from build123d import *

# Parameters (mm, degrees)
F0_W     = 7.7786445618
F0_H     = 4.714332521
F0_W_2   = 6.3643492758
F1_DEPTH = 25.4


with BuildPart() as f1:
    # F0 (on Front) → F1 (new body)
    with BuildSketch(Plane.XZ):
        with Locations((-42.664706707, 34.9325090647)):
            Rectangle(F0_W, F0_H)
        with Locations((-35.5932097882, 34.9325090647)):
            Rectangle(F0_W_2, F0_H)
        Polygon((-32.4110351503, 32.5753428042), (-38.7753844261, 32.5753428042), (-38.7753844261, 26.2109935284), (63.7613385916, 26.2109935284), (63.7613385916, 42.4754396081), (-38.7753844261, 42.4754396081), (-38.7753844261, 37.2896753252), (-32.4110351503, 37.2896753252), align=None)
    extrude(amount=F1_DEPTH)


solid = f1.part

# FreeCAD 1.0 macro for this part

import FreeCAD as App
import Part
import Sketcher

V = App.Vector
Q = App.Units.Quantity


def add_polygon(sketch, points):
    """Adds a closed chain of lines whose ends are joined by coincident constraints."""
    first, n = sketch.GeometryCount, len(points)
    for a, b in zip(points, points[1:] + points[:1]):
        sketch.addGeometry(Part.LineSegment(App.Vector(*a, 0), App.Vector(*b, 0)), False)
    for i in range(n):
        sketch.addConstraint(Sketcher.Constraint("Coincident", first + i, 2, first + (i + 1) % n, 1))

doc = App.newDocument("Part")
body = doc.addObject("PartDesign::Body", "Body")

sketch1 = body.newObject("Sketcher::SketchObject", "Sketch")
sketch1.AttachmentSupport = (doc.getObject("XZ_Plane"), [""])
sketch1.MapMode = "FlatFace"
add_polygon(sketch1, [(-46.6, 37.3), (-46.6, 32.6), (-38.8, 32.6), (-38.8, 26.2), (63.8, 26.2), (63.8, 42.5), (-38.8, 42.5), (-38.8, 37.3)])
sketch1.addConstraint([
    Sketcher.Constraint("Vertical", 0),
    Sketcher.Constraint("Horizontal", 1),
    Sketcher.Constraint("Vertical", 2),
    Sketcher.Constraint("Horizontal", 3),
    Sketcher.Constraint("Vertical", 4),
    Sketcher.Constraint("Horizontal", 5),
    Sketcher.Constraint("Vertical", 6),
    Sketcher.Constraint("Horizontal", 7),
    Sketcher.Constraint("Vertical", 2, 2, 5, 2),
    Sketcher.Constraint("DistanceY", 2, 2, 2, 1, Q("6.364349 mm")),
    Sketcher.Constraint("DistanceX", 1, 1, 1, 2, Q("7.778645 mm")),
    Sketcher.Constraint("DistanceX", 3, 1, 3, 2, Q("102.536723 mm")),
    Sketcher.Constraint("DistanceY", 0, 2, 0, 1, Q("4.714333 mm")),
    Sketcher.Constraint("DistanceY", 4, 1, 4, 2, Q("16.264446 mm")),
    Sketcher.Constraint("DistanceX", 0, 2, -1, 1, Q("46.554029 mm")),
    Sketcher.Constraint("DistanceY", -1, 1, 4, 2, Q("42.47544 mm")),
])
pad1 = body.newObject("PartDesign::Pad", "Pad")
pad1.Profile = sketch1
pad1.Length = Q("1 in")

doc.recompute()
